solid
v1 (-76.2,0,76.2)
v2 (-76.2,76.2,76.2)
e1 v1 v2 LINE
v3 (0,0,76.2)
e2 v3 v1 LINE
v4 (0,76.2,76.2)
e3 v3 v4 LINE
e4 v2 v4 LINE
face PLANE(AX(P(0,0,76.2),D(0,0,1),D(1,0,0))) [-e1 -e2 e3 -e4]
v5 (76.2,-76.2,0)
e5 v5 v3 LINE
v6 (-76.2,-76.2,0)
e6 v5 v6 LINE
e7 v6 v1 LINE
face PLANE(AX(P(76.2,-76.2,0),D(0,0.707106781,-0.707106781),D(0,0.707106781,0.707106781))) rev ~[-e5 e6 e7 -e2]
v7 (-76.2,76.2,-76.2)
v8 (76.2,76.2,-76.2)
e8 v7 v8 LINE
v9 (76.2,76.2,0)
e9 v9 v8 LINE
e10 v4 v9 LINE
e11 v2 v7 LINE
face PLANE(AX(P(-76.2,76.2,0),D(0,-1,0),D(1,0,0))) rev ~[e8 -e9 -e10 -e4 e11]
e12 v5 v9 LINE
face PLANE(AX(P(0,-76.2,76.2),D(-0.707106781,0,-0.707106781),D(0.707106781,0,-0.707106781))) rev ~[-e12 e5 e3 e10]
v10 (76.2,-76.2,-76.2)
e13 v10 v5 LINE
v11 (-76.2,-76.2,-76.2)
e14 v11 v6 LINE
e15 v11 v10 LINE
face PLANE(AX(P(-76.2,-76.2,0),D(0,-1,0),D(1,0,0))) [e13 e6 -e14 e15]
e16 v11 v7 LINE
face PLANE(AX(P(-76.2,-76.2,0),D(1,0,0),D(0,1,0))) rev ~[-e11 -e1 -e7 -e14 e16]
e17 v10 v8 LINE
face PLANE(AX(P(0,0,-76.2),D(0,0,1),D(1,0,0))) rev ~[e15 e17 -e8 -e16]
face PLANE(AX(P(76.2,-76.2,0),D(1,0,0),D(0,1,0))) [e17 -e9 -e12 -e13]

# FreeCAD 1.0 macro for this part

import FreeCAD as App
import Part
import Sketcher
Q = App.Units.Quantity

doc = App.newDocument("Part")
params = doc.addObject("Spreadsheet::Sheet", "Params")
for row, (alias, value) in enumerate([
    ("sketch1_width", "6 in"),
    ("pad1_length", "6 in"),
    ("sketch2_width", "3 in"),
    ("sketch3_width", "3 in"),
], start=1):
    params.set(f"A{row}", alias)
    params.set(f"B{row}", "=" + value)
    params.setAlias(f"B{row}", alias)

body = doc.addObject("PartDesign::Body", "Body")

sketch1 = body.newObject("Sketcher::SketchObject", "Sketch")
sketch1.AttachmentSupport = (doc.getObject("XY_Plane"), [""])
sketch1.MapMode = "FlatFace"
sketch1.addGeometry([
    Part.LineSegment(App.Vector(-76.2, 76.2, 0), App.Vector(-76.2, -76.2, 0)),
    Part.LineSegment(App.Vector(-76.2, -76.2, 0), App.Vector(76.2, -76.2, 0)),
    Part.LineSegment(App.Vector(76.2, -76.2, 0), App.Vector(76.2, 76.2, 0)),
    Part.LineSegment(App.Vector(76.2, 76.2, 0), App.Vector(-76.2, 76.2, 0)),
], False)
sketch1.addConstraint([
    Sketcher.Constraint("Coincident", 0, 2, 1, 1),
    Sketcher.Constraint("Coincident", 1, 2, 2, 1),
    Sketcher.Constraint("Coincident", 2, 2, 3, 1),
    Sketcher.Constraint("Coincident", 3, 2, 0, 1),
    Sketcher.Constraint("Vertical", 0),
    Sketcher.Constraint("Horizontal", 1),
    Sketcher.Constraint("Vertical", 2),
    Sketcher.Constraint("Horizontal", 3),
    Sketcher.Constraint("Symmetric", 0, 2, 2, 2, -1, 1),
    Sketcher.Constraint("Equal", 3, 0),
    Sketcher.Constraint("DistanceX", 1, 1, 1, 2, Q("6 in")),
])
sketch1.setExpression("Constraints[10]", "Params.sketch1_width")
pad1 = body.newObject("PartDesign::Pad", "Pad")
pad1.Profile = sketch1
pad1.setExpression("Length", "Params.pad1_length")
pad1.Midplane = True

sketch2 = body.newObject("Sketcher::SketchObject", "Sketch001")
sketch2.AttachmentSupport = (doc.getObject("YZ_Plane"), [""])
sketch2.MapMode = "FlatFace"
sketch2.AttachmentOffset = App.Placement(App.Vector(0, 0, 3 * 25.4), App.Rotation())
sketch2.addGeometry([
    Part.LineSegment(App.Vector(-76.2, 76.2, 0), App.Vector(-76.2, 0, 0)),
    Part.LineSegment(App.Vector(-76.2, 0, 0), App.Vector(0, 76.2, 0)),
    Part.LineSegment(App.Vector(0, 76.2, 0), App.Vector(-76.2, 76.2, 0)),
], False)
sketch2.addConstraint([
    Sketcher.Constraint("Coincident", 0, 2, 1, 1),
    Sketcher.Constraint("Coincident", 1, 2, 2, 1),
    Sketcher.Constraint("Coincident", 2, 2, 0, 1),
    Sketcher.Constraint("Vertical", 0),
    Sketcher.Constraint("Horizontal", 2),
    Sketcher.Constraint("PointOnObject", 0, 2, -1),
    Sketcher.Constraint("PointOnObject", 1, 2, -2),
    Sketcher.Constraint("Equal", 2, 0),
    Sketcher.Constraint("DistanceX", 2, 2, 2, 1, Q("3 in")),
])
sketch2.setExpression("Constraints[8]", "Params.sketch2_width")
pocket1 = body.newObject("PartDesign::Pocket", "Pocket")
pocket1.Profile = sketch2
pocket1.Type = "ThroughAll"

sketch3 = body.newObject("Sketcher::SketchObject", "Sketch002")
sketch3.AttachmentSupport = (doc.getObject("XZ_Plane"), [""])
sketch3.MapMode = "FlatFace"
sketch3.AttachmentOffset = App.Placement(App.Vector(0, 0, 3 * 25.4), App.Rotation())
sketch3.addGeometry([
    Part.LineSegment(App.Vector(76.2, 76.2, 0), App.Vector(0, 76.2, 0)),
    Part.LineSegment(App.Vector(0, 76.2, 0), App.Vector(76.2, 0, 0)),
    Part.LineSegment(App.Vector(76.2, 0, 0), App.Vector(76.2, 76.2, 0)),
], False)
sketch3.addConstraint([
    Sketcher.Constraint("Coincident", 0, 2, 1, 1),
    Sketcher.Constraint("Coincident", 1, 2, 2, 1),
    Sketcher.Constraint("Coincident", 2, 2, 0, 1),
    Sketcher.Constraint("Horizontal", 0),
    Sketcher.Constraint("Vertical", 2),
    Sketcher.Constraint("PointOnObject", 0, 2, -2),
    Sketcher.Constraint("PointOnObject", 1, 2, -1),
    Sketcher.Constraint("Equal", 0, 2),
    Sketcher.Constraint("DistanceX", 0, 2, 0, 1, Q("3 in")),
])
sketch3.setExpression("Constraints[8]", "Params.sketch3_width")
pocket2 = body.newObject("PartDesign::Pocket", "Pocket001")
pocket2.Profile = sketch3
pocket2.Type = "ThroughAll"

doc.recompute()
